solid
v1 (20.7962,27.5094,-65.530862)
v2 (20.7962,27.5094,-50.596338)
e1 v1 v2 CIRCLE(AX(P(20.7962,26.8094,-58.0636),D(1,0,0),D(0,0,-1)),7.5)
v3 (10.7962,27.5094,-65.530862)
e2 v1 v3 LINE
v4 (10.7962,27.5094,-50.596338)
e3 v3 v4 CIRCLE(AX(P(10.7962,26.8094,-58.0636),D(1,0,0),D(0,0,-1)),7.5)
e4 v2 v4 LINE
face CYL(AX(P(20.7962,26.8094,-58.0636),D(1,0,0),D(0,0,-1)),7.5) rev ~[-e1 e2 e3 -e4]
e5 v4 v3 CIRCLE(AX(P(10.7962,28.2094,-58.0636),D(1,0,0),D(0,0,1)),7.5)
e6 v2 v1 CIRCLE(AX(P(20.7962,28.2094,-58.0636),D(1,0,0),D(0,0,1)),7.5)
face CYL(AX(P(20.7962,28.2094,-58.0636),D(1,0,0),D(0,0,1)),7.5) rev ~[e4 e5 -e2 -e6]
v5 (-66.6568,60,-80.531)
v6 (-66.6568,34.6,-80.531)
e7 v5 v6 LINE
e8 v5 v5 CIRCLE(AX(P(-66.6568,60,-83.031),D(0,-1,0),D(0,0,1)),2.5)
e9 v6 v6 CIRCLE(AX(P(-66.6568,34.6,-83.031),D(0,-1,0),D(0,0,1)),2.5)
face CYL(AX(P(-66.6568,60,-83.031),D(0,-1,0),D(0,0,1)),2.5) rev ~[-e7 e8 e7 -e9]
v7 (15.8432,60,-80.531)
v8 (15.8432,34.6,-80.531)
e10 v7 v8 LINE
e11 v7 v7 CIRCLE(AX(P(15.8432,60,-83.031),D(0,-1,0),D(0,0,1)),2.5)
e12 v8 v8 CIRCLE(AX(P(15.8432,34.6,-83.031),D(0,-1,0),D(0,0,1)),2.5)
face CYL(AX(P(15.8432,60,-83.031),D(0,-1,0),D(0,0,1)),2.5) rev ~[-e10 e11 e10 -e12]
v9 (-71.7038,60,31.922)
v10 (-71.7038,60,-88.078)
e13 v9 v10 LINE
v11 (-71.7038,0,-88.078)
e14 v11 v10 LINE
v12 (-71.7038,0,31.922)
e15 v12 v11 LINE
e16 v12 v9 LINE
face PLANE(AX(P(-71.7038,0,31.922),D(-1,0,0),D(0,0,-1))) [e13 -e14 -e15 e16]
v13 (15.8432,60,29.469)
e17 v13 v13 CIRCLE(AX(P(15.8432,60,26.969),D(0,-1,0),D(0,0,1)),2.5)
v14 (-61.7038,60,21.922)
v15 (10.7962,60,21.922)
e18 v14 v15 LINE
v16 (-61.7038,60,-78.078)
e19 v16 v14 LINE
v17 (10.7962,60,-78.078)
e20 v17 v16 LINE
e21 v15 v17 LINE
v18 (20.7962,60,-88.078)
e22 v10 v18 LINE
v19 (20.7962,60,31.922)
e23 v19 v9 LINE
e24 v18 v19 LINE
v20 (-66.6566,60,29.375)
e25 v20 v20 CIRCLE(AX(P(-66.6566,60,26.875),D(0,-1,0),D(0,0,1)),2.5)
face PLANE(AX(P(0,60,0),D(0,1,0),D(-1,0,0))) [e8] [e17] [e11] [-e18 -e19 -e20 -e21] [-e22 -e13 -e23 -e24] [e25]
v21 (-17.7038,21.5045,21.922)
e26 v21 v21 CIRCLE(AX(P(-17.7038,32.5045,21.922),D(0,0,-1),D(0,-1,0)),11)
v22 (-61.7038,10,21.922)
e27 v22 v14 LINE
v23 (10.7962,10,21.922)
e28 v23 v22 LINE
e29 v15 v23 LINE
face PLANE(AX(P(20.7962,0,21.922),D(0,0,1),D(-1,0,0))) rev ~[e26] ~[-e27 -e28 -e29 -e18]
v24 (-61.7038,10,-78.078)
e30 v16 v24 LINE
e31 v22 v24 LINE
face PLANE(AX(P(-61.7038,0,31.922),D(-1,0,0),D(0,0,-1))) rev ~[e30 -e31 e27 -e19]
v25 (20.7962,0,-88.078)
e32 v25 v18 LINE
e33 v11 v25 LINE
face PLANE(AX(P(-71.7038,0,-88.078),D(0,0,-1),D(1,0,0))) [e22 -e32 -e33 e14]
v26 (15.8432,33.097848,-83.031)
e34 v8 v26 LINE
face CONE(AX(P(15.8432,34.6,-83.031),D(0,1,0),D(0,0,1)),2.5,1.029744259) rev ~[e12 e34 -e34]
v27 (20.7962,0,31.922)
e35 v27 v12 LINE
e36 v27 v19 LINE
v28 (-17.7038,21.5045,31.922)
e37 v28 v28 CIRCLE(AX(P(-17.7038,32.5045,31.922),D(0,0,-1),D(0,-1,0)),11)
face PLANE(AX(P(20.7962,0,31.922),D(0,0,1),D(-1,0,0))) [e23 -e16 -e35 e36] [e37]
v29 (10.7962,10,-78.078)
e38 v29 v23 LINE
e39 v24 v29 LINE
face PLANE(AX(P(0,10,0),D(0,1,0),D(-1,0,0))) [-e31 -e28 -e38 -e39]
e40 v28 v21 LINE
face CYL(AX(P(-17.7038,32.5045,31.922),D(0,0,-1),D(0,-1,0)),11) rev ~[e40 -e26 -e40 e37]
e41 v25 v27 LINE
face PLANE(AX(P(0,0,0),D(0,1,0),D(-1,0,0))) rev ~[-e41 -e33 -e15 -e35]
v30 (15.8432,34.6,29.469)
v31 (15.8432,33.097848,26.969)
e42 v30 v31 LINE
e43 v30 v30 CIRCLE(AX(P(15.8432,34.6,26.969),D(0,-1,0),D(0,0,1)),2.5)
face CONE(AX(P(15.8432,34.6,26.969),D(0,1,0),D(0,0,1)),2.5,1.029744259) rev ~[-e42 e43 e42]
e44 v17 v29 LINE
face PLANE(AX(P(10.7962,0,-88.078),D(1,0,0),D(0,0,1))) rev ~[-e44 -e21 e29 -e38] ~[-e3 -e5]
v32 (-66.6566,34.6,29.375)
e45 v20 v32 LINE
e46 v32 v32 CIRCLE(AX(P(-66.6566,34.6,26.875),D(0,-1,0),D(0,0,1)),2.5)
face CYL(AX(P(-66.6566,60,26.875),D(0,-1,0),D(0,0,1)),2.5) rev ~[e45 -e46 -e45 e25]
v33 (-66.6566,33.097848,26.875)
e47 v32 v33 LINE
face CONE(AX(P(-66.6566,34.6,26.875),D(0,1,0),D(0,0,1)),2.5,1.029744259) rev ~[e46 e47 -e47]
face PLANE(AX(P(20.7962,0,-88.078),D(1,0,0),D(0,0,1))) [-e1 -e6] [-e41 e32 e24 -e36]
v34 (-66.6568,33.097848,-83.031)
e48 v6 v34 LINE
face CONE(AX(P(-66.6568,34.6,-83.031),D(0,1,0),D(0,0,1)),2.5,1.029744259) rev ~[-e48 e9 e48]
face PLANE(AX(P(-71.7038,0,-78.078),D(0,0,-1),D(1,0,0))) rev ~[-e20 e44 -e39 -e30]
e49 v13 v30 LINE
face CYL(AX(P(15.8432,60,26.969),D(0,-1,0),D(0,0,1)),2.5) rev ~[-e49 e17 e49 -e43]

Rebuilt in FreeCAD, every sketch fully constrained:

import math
import FreeCAD as App
import Part
import Sketcher
Q = App.Units.Quantity


def faces_at(feature, points):
    """Names of the faces that lie closest to the given points."""
    faces = feature.Shape.Faces
    near = lambda p: min(range(len(faces)), key=lambda i: faces[i].distToShape(Part.Vertex(*p))[0])
    return sorted({f"Face{near(p) + 1}" for p in points})


def add_polygon(sketch, points):
    """Adds a closed chain of lines whose ends are joined by coincident constraints."""
    first, n = sketch.GeometryCount, len(points)
    for a, b in zip(points, points[1:] + points[:1]):
        sketch.addGeometry(Part.LineSegment(App.Vector(*a, 0), App.Vector(*b, 0)), False)
    for i in range(n):
        sketch.addConstraint(Sketcher.Constraint("Coincident", first + i, 2, first + (i + 1) % n, 1))

doc = App.newDocument("Part")
params = doc.addObject("Spreadsheet::Sheet", "Params")
for row, (alias, value) in enumerate([
    ("sketch1_height", "120 mm"),
    ("sketch1_width", "92.5 mm"),
    ("pad1_length", "60 mm"),
    ("thickness_wall", "10 mm"),
    ("sketch2_diameter", "5 mm"),
    ("hole_diameter", "5 mm"),
    ("hole_depth", "25.4 mm"),
    ("sketch3_diameter", "5 mm"),
    ("hole2_diameter", "5 mm"),
    ("hole2_depth", "25.4 mm"),
    ("sketch4_diameter", "5 mm"),
    ("hole3_diameter", "5 mm"),
    ("hole3_depth", "25.4 mm"),
    ("sketch5_diameter", "5 mm"),
    ("hole4_diameter", "5 mm"),
    ("hole4_depth", "25.4 mm"),
    ("sketch6_diameter", "22 mm"),
    ("hole5_diameter", "22 mm"),
    ("hole5_depth", "25.4 mm"),
    ("sketch7_radius", "7.5 mm"),
    ("pocket1_length", "10 mm"),
], start=1):
    params.set(f"A{row}", alias)
    params.set(f"B{row}", "=" + value)
    params.setAlias(f"B{row}", alias)

body = doc.addObject("PartDesign::Body", "Body")

# Sketch on XZ plane
sketch1 = doc.addObject("Sketcher::SketchObject", "Sketch")
body.addObject(sketch1)
sketch1.AttachmentSupport = (doc.XZ_Plane, [""])
sketch1.MapMode = "FlatFace"
add_polygon(sketch1, [(-72, -88), (-72, 32), (21, 32), (21, -88)])  # lines 0-3
sketch1.addConstraint(Sketcher.Constraint("Vertical", 0))
sketch1.addConstraint(Sketcher.Constraint("Horizontal", 1))
sketch1.addConstraint(Sketcher.Constraint("Vertical", 2))
sketch1.addConstraint(Sketcher.Constraint("Horizontal", 3))
sketch1.addConstraint(Sketcher.Constraint("DistanceY", 0, 1, 0, 2, Q("120 mm")))
sketch1.addConstraint(Sketcher.Constraint("DistanceX", 1, 1, 1, 2, Q("92.5 mm")))
sketch1.addConstraint(Sketcher.Constraint("DistanceY", -1, 1, 0, 2, Q("31.922 mm")))
sketch1.addConstraint(Sketcher.Constraint("DistanceX", 0, 2, -1, 1, Q("71.7038 mm")))
sketch1.setExpression("Constraints[8]", "Params.sketch1_height")
sketch1.setExpression("Constraints[9]", "Params.sketch1_width")
pad1 = doc.addObject("PartDesign::Pad", "Pad")
body.addObject(pad1)
pad1.Profile = sketch1
pad1.setExpression("Length", "Params.pad1_length")
pad1.Reversed = True
doc.recompute()

thickness = doc.addObject("PartDesign::Thickness", "Thickness")
body.addObject(thickness)
thickness.Base = (pad1, faces_at(pad1, [(-10.037, 60, -48.078)]))
thickness.setExpression("Value", "Params.thickness_wall")
thickness.Reversed = True
thickness.Join = "Intersection"

# Sketch on XZ plane
sketch2 = doc.addObject("Sketcher::SketchObject", "Sketch001")
body.addObject(sketch2)
sketch2.AttachmentSupport = (doc.XZ_Plane, [""])
sketch2.MapMode = "FlatFace"
sketch2.AttachmentOffset = App.Placement(App.Vector(0, 0, -60), App.Rotation())
sketch2.addGeometry(Part.Circle(App.Vector(15.8, 27, 0), App.Vector(0, 0, 1), 2.5), False)
sketch2.addConstraint(Sketcher.Constraint("Diameter", 0, Q("5 mm")))
sketch2.addConstraint(Sketcher.Constraint("DistanceY", -1, 1, 0, 3, Q("26.969 mm")))
sketch2.addConstraint(Sketcher.Constraint("DistanceX", -1, 1, 0, 3, Q("15.8432 mm")))
sketch2.setExpression("Constraints[0]", "Params.sketch2_diameter")
doc.recompute()
hole = doc.addObject("PartDesign::Hole", "Hole")
body.addObject(hole)
hole.Profile = sketch2
hole.ThreadType = "None"
hole.setExpression("Diameter", "Params.hole_diameter")
hole.DepthType = "Dimension"
hole.setExpression("Depth", "Params.hole_depth")
hole.DrillPoint = "Angled"
hole.DrillPointAngle = 118
hole.Reversed = True

# Sketch on XZ plane
sketch3 = doc.addObject("Sketcher::SketchObject", "Sketch002")
body.addObject(sketch3)
sketch3.AttachmentSupport = (doc.XZ_Plane, [""])
sketch3.MapMode = "FlatFace"
sketch3.AttachmentOffset = App.Placement(App.Vector(0, 0, -60), App.Rotation())
sketch3.addGeometry(Part.Circle(App.Vector(-66.7, 26.9, 0), App.Vector(0, 0, 1), 2.5), False)
sketch3.addConstraint(Sketcher.Constraint("Diameter", 0, Q("5 mm")))
sketch3.addConstraint(Sketcher.Constraint("DistanceY", -1, 1, 0, 3, Q("26.875 mm")))
sketch3.addConstraint(Sketcher.Constraint("DistanceX", 0, 3, -1, 1, Q("66.6566 mm")))
sketch3.setExpression("Constraints[0]", "Params.sketch3_diameter")
doc.recompute()
hole2 = doc.addObject("PartDesign::Hole", "Hole001")
body.addObject(hole2)
hole2.Profile = sketch3
hole2.ThreadType = "None"
hole2.setExpression("Diameter", "Params.hole2_diameter")
hole2.DepthType = "Dimension"
hole2.setExpression("Depth", "Params.hole2_depth")
hole2.DrillPoint = "Angled"
hole2.DrillPointAngle = 118
hole2.Reversed = True

# Sketch on XZ plane
sketch4 = doc.addObject("Sketcher::SketchObject", "Sketch003")
body.addObject(sketch4)
sketch4.AttachmentSupport = (doc.XZ_Plane, [""])
sketch4.MapMode = "FlatFace"
sketch4.AttachmentOffset = App.Placement(App.Vector(0, 0, -60), App.Rotation())
sketch4.addGeometry(Part.Circle(App.Vector(15.8, -83, 0), App.Vector(0, 0, 1), 2.5), False)
sketch4.addConstraint(Sketcher.Constraint("Diameter", 0, Q("5 mm")))
sketch4.addConstraint(Sketcher.Constraint("DistanceY", 0, 3, -1, 1, Q("83.031 mm")))
sketch4.addConstraint(Sketcher.Constraint("DistanceX", -1, 1, 0, 3, Q("15.8432 mm")))
sketch4.setExpression("Constraints[0]", "Params.sketch4_diameter")
doc.recompute()
hole3 = doc.addObject("PartDesign::Hole", "Hole002")
body.addObject(hole3)
hole3.Profile = sketch4
hole3.ThreadType = "None"
hole3.setExpression("Diameter", "Params.hole3_diameter")
hole3.DepthType = "Dimension"
hole3.setExpression("Depth", "Params.hole3_depth")
hole3.DrillPoint = "Angled"
hole3.DrillPointAngle = 118
hole3.Reversed = True

# Sketch on XZ plane
sketch5 = doc.addObject("Sketcher::SketchObject", "Sketch004")
body.addObject(sketch5)
sketch5.AttachmentSupport = (doc.XZ_Plane, [""])
sketch5.MapMode = "FlatFace"
sketch5.AttachmentOffset = App.Placement(App.Vector(0, 0, -60), App.Rotation())
sketch5.addGeometry(Part.Circle(App.Vector(-66.7, -83, 0), App.Vector(0, 0, 1), 2.5), False)
sketch5.addConstraint(Sketcher.Constraint("Diameter", 0, Q("5 mm")))
sketch5.addConstraint(Sketcher.Constraint("DistanceY", 0, 3, -1, 1, Q("83.031 mm")))
sketch5.addConstraint(Sketcher.Constraint("DistanceX", 0, 3, -1, 1, Q("66.6568 mm")))
sketch5.setExpression("Constraints[0]", "Params.sketch5_diameter")
doc.recompute()
hole4 = doc.addObject("PartDesign::Hole", "Hole003")
body.addObject(hole4)
hole4.Profile = sketch5
hole4.ThreadType = "None"
hole4.setExpression("Diameter", "Params.hole4_diameter")
hole4.DepthType = "Dimension"
hole4.setExpression("Depth", "Params.hole4_depth")
hole4.DrillPoint = "Angled"
hole4.DrillPointAngle = 118
hole4.Reversed = True

# Sketch on XY plane
sketch6 = doc.addObject("Sketcher::SketchObject", "Sketch005")
body.addObject(sketch6)
sketch6.AttachmentSupport = (doc.XY_Plane, [""])
sketch6.MapMode = "FlatFace"
sketch6.AttachmentOffset = App.Placement(App.Vector(0, 0, 31.922), App.Rotation())
sketch6.addGeometry(Part.Circle(App.Vector(-18, 33, 0), App.Vector(0, 0, 1), 11), False)
sketch6.addConstraint(Sketcher.Constraint("Diameter", 0, Q("22 mm")))
sketch6.addConstraint(Sketcher.Constraint("DistanceX", 0, 3, -1, 1, Q("17.7038 mm")))
sketch6.addConstraint(Sketcher.Constraint("DistanceY", -1, 1, 0, 3, Q("32.5045 mm")))
sketch6.setExpression("Constraints[0]", "Params.sketch6_diameter")
doc.recompute()
hole5 = doc.addObject("PartDesign::Hole", "Hole004")
body.addObject(hole5)
hole5.Profile = sketch6
hole5.ThreadType = "None"
hole5.setExpression("Diameter", "Params.hole5_diameter")
hole5.DepthType = "Dimension"
hole5.setExpression("Depth", "Params.hole5_depth")
hole5.DrillPoint = "Angled"
hole5.DrillPointAngle = 118

# Sketch on YZ plane
sketch7 = doc.addObject("Sketcher::SketchObject", "Sketch006")
body.addObject(sketch7)
sketch7.AttachmentSupport = (doc.YZ_Plane, [""])
sketch7.MapMode = "FlatFace"
sketch7.AttachmentOffset = App.Placement(App.Vector(0, 0, 20.7962), App.Rotation())
sketch7.addGeometry(Part.ArcOfCircle(Part.Circle(App.Vector(27, -58, 0), App.Vector(0, 0, 1), 8), math.radians(-85), math.radians(85)), False)
sketch7.addGeometry(Part.ArcOfCircle(Part.Circle(App.Vector(28, -58, 0), App.Vector(0, 0, 1), 8), math.radians(95), math.radians(265)), False)
sketch7.addConstraint(Sketcher.Constraint("Coincident", 0, 1, 1, 2))
sketch7.addConstraint(Sketcher.Constraint("Coincident", 1, 1, 0, 2))
sketch7.addConstraint(Sketcher.Constraint("Equal", 0, 1))
sketch7.addConstraint(Sketcher.Constraint("Horizontal", 0, 3, 1, 3))
sketch7.addConstraint(Sketcher.Constraint("Radius", 0, Q("7.5 mm")))
sketch7.addConstraint(Sketcher.Constraint("DistanceX", 0, 3, 1, 3, Q("1.4 mm")))
sketch7.addConstraint(Sketcher.Constraint("DistanceX", -1, 1, 0, 3, Q("26.8094 mm")))
sketch7.addConstraint(Sketcher.Constraint("DistanceY", 0, 3, -1, 1, Q("58.0636 mm")))
sketch7.setExpression("Constraints[4]", "Params.sketch7_radius")
pocket1 = doc.addObject("PartDesign::Pocket", "Pocket")
body.addObject(pocket1)
pocket1.Profile = sketch7
pocket1.setExpression("Length", "Params.pocket1_length")

doc.recompute()
